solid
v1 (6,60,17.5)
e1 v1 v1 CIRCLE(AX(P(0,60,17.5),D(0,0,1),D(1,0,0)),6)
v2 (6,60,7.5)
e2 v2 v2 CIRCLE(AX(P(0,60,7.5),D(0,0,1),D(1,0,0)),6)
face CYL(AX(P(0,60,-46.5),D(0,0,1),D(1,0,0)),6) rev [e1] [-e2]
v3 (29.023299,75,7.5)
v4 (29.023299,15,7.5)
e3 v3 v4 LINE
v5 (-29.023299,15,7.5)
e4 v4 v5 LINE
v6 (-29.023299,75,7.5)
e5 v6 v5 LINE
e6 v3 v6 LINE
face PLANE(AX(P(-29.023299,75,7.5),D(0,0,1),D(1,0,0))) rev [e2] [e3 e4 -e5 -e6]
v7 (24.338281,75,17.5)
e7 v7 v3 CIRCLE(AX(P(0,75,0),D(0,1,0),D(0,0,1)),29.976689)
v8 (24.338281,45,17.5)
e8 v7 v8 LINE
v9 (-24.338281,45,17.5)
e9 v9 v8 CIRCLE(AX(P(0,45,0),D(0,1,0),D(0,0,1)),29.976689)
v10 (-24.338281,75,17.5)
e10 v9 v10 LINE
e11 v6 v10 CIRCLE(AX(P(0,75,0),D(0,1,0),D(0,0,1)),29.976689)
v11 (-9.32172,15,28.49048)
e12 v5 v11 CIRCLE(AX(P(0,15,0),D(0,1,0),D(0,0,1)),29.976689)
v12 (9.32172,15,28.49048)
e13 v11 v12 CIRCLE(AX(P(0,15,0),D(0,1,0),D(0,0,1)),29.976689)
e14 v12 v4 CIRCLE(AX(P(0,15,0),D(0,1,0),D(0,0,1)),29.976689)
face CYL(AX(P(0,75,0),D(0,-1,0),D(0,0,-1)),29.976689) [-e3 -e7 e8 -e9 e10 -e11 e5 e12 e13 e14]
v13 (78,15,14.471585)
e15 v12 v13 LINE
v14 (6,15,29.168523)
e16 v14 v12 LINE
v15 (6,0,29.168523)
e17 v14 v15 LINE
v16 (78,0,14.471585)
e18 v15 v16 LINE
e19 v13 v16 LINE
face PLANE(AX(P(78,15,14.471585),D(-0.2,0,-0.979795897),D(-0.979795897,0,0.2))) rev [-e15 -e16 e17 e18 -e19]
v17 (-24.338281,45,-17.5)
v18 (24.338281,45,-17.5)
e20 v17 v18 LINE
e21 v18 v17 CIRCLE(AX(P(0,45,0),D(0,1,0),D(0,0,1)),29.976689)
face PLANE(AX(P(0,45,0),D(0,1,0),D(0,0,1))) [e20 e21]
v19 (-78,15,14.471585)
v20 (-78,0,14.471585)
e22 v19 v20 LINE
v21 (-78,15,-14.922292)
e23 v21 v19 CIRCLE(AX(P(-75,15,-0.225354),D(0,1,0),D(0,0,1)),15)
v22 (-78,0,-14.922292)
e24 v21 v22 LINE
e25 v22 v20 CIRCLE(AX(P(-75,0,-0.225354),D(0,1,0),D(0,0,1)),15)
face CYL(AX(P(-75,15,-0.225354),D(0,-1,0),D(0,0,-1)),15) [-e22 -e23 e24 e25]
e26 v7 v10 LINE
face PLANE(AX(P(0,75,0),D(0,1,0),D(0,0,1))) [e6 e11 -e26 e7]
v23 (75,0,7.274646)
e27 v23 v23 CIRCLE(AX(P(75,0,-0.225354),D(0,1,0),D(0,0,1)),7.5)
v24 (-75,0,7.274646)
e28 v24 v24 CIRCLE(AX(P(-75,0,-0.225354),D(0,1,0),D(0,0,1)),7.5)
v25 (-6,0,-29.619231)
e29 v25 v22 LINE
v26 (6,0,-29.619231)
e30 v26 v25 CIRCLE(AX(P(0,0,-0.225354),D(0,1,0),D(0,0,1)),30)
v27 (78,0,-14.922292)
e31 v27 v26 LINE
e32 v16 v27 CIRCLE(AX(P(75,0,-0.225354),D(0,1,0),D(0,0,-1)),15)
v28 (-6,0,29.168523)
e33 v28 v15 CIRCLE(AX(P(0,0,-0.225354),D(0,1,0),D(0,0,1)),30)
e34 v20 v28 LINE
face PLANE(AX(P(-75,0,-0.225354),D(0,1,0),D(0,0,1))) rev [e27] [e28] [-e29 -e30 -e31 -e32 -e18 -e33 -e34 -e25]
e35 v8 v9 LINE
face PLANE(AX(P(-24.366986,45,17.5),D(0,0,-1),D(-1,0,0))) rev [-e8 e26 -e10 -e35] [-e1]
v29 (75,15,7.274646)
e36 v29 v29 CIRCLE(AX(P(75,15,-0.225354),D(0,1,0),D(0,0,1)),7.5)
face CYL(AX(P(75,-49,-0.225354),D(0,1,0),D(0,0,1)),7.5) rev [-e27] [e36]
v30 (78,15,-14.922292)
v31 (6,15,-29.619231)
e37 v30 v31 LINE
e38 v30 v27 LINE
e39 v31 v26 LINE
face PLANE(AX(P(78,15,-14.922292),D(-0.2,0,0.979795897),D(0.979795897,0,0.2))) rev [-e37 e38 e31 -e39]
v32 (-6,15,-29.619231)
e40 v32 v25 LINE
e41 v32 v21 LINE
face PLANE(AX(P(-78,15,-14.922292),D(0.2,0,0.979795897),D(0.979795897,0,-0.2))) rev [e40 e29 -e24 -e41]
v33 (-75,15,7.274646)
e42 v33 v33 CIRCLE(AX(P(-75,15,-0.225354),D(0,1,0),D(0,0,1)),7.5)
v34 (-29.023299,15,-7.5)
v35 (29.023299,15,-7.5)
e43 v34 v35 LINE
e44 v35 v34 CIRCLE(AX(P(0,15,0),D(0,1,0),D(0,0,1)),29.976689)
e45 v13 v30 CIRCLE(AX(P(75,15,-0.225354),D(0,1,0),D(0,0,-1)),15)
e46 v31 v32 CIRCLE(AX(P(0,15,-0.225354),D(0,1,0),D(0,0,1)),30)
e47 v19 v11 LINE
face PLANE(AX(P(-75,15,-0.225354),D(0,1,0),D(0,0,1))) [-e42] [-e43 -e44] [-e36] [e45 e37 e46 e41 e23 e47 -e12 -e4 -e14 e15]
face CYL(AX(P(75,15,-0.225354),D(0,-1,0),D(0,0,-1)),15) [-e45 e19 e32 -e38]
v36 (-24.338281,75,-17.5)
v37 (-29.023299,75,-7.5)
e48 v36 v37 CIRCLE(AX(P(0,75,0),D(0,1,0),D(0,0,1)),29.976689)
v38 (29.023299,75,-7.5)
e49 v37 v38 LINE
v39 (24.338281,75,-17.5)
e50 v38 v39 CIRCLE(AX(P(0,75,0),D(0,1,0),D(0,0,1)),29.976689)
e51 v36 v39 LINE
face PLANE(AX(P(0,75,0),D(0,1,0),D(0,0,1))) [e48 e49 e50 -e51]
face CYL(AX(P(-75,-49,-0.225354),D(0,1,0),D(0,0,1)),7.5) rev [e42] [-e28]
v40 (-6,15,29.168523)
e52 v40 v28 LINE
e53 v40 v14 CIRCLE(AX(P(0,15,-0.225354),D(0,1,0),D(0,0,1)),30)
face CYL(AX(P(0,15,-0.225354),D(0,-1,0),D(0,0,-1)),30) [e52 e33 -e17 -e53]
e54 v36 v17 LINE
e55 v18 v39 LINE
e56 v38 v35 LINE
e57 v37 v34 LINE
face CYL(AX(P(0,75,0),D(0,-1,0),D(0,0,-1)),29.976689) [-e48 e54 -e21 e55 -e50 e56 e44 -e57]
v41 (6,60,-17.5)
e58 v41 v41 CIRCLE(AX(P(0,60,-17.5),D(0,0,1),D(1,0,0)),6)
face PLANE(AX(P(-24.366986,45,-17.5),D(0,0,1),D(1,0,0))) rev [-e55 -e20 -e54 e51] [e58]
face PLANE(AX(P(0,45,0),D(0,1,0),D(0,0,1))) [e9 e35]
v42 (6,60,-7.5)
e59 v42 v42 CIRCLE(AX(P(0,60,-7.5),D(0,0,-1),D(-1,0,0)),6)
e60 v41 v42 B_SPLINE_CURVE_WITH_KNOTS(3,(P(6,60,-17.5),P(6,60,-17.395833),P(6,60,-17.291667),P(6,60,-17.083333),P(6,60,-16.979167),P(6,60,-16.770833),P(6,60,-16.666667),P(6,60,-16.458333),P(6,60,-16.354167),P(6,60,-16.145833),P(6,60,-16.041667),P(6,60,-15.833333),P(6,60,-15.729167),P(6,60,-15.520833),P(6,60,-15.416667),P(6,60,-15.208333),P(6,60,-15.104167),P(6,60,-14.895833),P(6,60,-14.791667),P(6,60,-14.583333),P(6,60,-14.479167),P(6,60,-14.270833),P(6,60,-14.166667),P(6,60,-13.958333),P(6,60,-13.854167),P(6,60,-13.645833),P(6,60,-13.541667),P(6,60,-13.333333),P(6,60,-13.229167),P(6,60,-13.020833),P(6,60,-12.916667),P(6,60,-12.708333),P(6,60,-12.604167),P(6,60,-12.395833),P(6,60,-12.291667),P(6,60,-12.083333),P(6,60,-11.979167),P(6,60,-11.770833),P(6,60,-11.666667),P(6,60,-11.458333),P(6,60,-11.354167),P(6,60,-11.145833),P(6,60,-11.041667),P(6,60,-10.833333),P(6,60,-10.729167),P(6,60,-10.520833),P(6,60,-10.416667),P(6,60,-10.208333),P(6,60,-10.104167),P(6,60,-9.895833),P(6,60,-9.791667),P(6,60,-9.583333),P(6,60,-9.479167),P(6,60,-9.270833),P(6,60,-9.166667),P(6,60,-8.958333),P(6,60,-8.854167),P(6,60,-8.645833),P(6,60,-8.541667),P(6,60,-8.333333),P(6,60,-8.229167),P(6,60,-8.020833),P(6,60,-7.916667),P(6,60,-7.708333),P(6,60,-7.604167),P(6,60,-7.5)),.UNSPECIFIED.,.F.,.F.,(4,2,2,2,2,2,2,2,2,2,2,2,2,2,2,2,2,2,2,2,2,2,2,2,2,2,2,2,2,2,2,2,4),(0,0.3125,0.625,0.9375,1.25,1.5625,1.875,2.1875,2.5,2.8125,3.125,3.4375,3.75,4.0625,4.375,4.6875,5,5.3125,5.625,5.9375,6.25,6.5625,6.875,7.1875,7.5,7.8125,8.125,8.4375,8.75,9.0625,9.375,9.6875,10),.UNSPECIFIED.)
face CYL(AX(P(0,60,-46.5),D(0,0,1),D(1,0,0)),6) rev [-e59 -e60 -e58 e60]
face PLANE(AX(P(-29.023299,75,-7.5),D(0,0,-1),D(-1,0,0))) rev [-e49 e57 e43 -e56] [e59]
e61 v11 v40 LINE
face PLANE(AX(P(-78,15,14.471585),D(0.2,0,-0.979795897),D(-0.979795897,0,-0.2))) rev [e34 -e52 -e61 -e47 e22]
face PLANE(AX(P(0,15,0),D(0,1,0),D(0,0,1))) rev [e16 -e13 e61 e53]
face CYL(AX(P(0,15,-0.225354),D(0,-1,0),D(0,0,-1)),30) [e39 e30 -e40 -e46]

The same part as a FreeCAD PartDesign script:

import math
import FreeCAD as App
import Part
import Sketcher
from FreeCAD import Vector
Q = App.Units.Quantity

doc = App.newDocument("Part")
body = doc.addObject("PartDesign::Body", "Body")

sketch1 = body.newObject("Sketcher::SketchObject", "Sketch")
sketch1.AttachmentSupport = (doc.getObject("XZ_Plane"), [""])
sketch1.MapMode = "FlatFace"
sketch1.addGeometry([
    Part.LineSegment(Vector(-6, -30, 0), Vector(-78, -15, 0)),
    Part.ArcOfCircle(Part.Circle(Vector(-75, 0, 0), Vector(0, 0, 1), 15), math.radians(102), math.radians(258)),
    Part.LineSegment(Vector(-78, 14, 0), Vector(-6, 29, 0)),
    Part.ArcOfCircle(Part.Circle(Vector(0, 0, 0), Vector(0, 0, 1), 30), math.radians(78), math.radians(102)),
    Part.LineSegment(Vector(6, 29, 0), Vector(78, 14, 0)),
    Part.ArcOfCircle(Part.Circle(Vector(75, 0, 0), Vector(0, 0, 1), 15), math.radians(-78), math.radians(78)),
    Part.LineSegment(Vector(78, -15, 0), Vector(6, -30, 0)),
    Part.ArcOfCircle(Part.Circle(Vector(0, 0, 0), Vector(0, 0, 1), 30), math.radians(-102), math.radians(-78)),
], False)
sketch1.addConstraint([
    Sketcher.Constraint("Tangent", 0, 2, 1, 2),
    Sketcher.Constraint("Tangent", 1, 1, 2, 1),
    Sketcher.Constraint("Tangent", 2, 2, 3, 2),
    Sketcher.Constraint("Tangent", 3, 1, 4, 1),
    Sketcher.Constraint("Tangent", 4, 2, 5, 2),
    Sketcher.Constraint("Tangent", 5, 1, 6, 1),
    Sketcher.Constraint("Tangent", 6, 2, 7, 2),
    Sketcher.Constraint("Tangent", 7, 1, 0, 1),
    Sketcher.Constraint("Coincident", 7, 3, 3, 3),
    Sketcher.Constraint("Equal", 1, 5),
    Sketcher.Constraint("Equal", 3, 7),
    Sketcher.Constraint("Symmetric", 1, 3, 5, 3, -2),
    Sketcher.Constraint("PointOnObject", 3, 3, -2),
    Sketcher.Constraint("Parallel", 0, 4),
    Sketcher.Constraint("Radius", 1, Q("15 mm")),
    Sketcher.Constraint("Radius", 3, Q("30 mm")),
    Sketcher.Constraint("DistanceX", 1, 3, -1, 1, Q("75 mm")),
    Sketcher.Constraint("DistanceY", 6, 2, -1, 1, Q("29.619231 mm")),
])
pad1 = body.newObject("PartDesign::Pad", "Pad")
pad1.Profile = sketch1
pad1.Length = 15
pad1.Reversed = True

sketch2 = body.newObject("Sketcher::SketchObject", "Sketch001")
sketch2.AttachmentSupport = (doc.getObject("XZ_Plane"), [""])
sketch2.MapMode = "FlatFace"
sketch2.AttachmentOffset = App.Placement(Vector(0, 0, -15), App.Rotation())
sketch2.addGeometry([
    Part.LineSegment(Vector(-29, -8, 0), Vector(29, -8, 0)),
    Part.ArcOfCircle(Part.Circle(Vector(0, 0, 0), Vector(0, 0, 1), 30), math.radians(-166), math.radians(-14)),
    Part.LineSegment(Vector(29, 8, 0), Vector(-29, 8, 0)),
    Part.ArcOfCircle(Part.Circle(Vector(0, 0, 0), Vector(0, 0, 1), 30), math.radians(14), math.radians(166)),
], False)
sketch2.addConstraint([
    Sketcher.Constraint("Coincident", 0, 1, 1, 1),
    Sketcher.Constraint("Coincident", 1, 2, 0, 2),
    Sketcher.Constraint("Coincident", 2, 1, 3, 1),
    Sketcher.Constraint("Coincident", 3, 2, 2, 2),
    Sketcher.Constraint("Horizontal", 0),
    Sketcher.Constraint("Horizontal", 2),
    Sketcher.Constraint("Coincident", 1, 3, -1, 1),
    Sketcher.Constraint("Coincident", 3, 3, -1, 1),
    Sketcher.Constraint("Equal", 1, 3),
    Sketcher.Constraint("Vertical", 1, 2, 2, 1),
    Sketcher.Constraint("DistanceY", 1, 2, 2, 1, Q("15 mm")),
    Sketcher.Constraint("Radius", 1, Q("29.976689 mm")),
])
pad2 = body.newObject("PartDesign::Pad", "Pad001")
pad2.Profile = sketch2
pad2.Length = 60
pad2.Reversed = True

sketch3 = body.newObject("Sketcher::SketchObject", "Sketch002")
sketch3.AttachmentSupport = (doc.getObject("XZ_Plane"), [""])
sketch3.MapMode = "FlatFace"
sketch3.AttachmentOffset = App.Placement(Vector(0, 0, -75), App.Rotation())
sketch3.addGeometry([
    Part.LineSegment(Vector(-24, -18, 0), Vector(24, -18, 0)),
    Part.ArcOfCircle(Part.Circle(Vector(0, 0, 0), Vector(0, 0, 1), 30), math.radians(-144), math.radians(-36)),
    Part.LineSegment(Vector(24, 18, 0), Vector(-24, 18, 0)),
    Part.ArcOfCircle(Part.Circle(Vector(0, 0, 0), Vector(0, 0, 1), 30), math.radians(36), math.radians(144)),
], False)
sketch3.addConstraint([
    Sketcher.Constraint("Coincident", 0, 1, 1, 1),
    Sketcher.Constraint("Coincident", 1, 2, 0, 2),
    Sketcher.Constraint("Coincident", 2, 1, 3, 1),
    Sketcher.Constraint("Coincident", 3, 2, 2, 2),
    Sketcher.Constraint("Horizontal", 0),
    Sketcher.Constraint("Horizontal", 2),
    Sketcher.Constraint("Coincident", 1, 3, -1, 1),
    Sketcher.Constraint("Coincident", 3, 3, -1, 1),
    Sketcher.Constraint("Equal", 1, 3),
    Sketcher.Constraint("Vertical", 1, 2, 2, 1),
    Sketcher.Constraint("Radius", 1, Q("30 mm")),
    Sketcher.Constraint("DistanceY", 1, 2, 2, 1, Q("35 mm")),
])
pocket1 = body.newObject("PartDesign::Pocket", "Pocket")
pocket1.Profile = sketch3
pocket1.Length = 30
pocket1.Reversed = True

sketch4 = body.newObject("Sketcher::SketchObject", "Sketch003")
sketch4.AttachmentSupport = (doc.getObject("XY_Plane"), [""])
sketch4.MapMode = "FlatFace"
sketch4.AttachmentOffset = App.Placement(Vector(0, 0, 17.5), App.Rotation())
sketch4.addGeometry(Part.Circle(Vector(0, 60, 0), Vector(0, 0, 1), 6), False)
sketch4.addConstraint([
    Sketcher.Constraint("PointOnObject", 0, 3, -2),
    Sketcher.Constraint("Diameter", 0, Q("12 mm")),
    Sketcher.Constraint("DistanceY", -1, 1, 0, 3, Q("60 mm")),
])
pocket2 = body.newObject("PartDesign::Pocket", "Pocket001")
pocket2.Profile = sketch4
pocket2.Length = 64

sketch5 = body.newObject("Sketcher::SketchObject", "Sketch004")
sketch5.AttachmentSupport = (doc.getObject("XZ_Plane"), [""])
sketch5.MapMode = "FlatFace"
sketch5.AttachmentOffset = App.Placement(Vector(0, 0, -15), App.Rotation())
sketch5.addGeometry([
    Part.Circle(Vector(-75, 0, 0), Vector(0, 0, 1), 8),
    Part.Circle(Vector(75, 0, 0), Vector(0, 0, 1), 8),
], False)
sketch5.addConstraint([
    Sketcher.Constraint("Equal", 0, 1),
    Sketcher.Constraint("Symmetric", 0, 3, 1, 3, -2),
    Sketcher.Constraint("Diameter", 0, Q("15 mm")),
    Sketcher.Constraint("DistanceX", 0, 3, -1, 1, Q("75 mm")),
    Sketcher.Constraint("DistanceY", 0, 3, -1, 1, Q("0.225354 mm")),
])
pocket3 = body.newObject("PartDesign::Pocket", "Pocket002")
pocket3.Profile = sketch5
pocket3.Length = 64
pocket3.Reversed = True

doc.recompute()
